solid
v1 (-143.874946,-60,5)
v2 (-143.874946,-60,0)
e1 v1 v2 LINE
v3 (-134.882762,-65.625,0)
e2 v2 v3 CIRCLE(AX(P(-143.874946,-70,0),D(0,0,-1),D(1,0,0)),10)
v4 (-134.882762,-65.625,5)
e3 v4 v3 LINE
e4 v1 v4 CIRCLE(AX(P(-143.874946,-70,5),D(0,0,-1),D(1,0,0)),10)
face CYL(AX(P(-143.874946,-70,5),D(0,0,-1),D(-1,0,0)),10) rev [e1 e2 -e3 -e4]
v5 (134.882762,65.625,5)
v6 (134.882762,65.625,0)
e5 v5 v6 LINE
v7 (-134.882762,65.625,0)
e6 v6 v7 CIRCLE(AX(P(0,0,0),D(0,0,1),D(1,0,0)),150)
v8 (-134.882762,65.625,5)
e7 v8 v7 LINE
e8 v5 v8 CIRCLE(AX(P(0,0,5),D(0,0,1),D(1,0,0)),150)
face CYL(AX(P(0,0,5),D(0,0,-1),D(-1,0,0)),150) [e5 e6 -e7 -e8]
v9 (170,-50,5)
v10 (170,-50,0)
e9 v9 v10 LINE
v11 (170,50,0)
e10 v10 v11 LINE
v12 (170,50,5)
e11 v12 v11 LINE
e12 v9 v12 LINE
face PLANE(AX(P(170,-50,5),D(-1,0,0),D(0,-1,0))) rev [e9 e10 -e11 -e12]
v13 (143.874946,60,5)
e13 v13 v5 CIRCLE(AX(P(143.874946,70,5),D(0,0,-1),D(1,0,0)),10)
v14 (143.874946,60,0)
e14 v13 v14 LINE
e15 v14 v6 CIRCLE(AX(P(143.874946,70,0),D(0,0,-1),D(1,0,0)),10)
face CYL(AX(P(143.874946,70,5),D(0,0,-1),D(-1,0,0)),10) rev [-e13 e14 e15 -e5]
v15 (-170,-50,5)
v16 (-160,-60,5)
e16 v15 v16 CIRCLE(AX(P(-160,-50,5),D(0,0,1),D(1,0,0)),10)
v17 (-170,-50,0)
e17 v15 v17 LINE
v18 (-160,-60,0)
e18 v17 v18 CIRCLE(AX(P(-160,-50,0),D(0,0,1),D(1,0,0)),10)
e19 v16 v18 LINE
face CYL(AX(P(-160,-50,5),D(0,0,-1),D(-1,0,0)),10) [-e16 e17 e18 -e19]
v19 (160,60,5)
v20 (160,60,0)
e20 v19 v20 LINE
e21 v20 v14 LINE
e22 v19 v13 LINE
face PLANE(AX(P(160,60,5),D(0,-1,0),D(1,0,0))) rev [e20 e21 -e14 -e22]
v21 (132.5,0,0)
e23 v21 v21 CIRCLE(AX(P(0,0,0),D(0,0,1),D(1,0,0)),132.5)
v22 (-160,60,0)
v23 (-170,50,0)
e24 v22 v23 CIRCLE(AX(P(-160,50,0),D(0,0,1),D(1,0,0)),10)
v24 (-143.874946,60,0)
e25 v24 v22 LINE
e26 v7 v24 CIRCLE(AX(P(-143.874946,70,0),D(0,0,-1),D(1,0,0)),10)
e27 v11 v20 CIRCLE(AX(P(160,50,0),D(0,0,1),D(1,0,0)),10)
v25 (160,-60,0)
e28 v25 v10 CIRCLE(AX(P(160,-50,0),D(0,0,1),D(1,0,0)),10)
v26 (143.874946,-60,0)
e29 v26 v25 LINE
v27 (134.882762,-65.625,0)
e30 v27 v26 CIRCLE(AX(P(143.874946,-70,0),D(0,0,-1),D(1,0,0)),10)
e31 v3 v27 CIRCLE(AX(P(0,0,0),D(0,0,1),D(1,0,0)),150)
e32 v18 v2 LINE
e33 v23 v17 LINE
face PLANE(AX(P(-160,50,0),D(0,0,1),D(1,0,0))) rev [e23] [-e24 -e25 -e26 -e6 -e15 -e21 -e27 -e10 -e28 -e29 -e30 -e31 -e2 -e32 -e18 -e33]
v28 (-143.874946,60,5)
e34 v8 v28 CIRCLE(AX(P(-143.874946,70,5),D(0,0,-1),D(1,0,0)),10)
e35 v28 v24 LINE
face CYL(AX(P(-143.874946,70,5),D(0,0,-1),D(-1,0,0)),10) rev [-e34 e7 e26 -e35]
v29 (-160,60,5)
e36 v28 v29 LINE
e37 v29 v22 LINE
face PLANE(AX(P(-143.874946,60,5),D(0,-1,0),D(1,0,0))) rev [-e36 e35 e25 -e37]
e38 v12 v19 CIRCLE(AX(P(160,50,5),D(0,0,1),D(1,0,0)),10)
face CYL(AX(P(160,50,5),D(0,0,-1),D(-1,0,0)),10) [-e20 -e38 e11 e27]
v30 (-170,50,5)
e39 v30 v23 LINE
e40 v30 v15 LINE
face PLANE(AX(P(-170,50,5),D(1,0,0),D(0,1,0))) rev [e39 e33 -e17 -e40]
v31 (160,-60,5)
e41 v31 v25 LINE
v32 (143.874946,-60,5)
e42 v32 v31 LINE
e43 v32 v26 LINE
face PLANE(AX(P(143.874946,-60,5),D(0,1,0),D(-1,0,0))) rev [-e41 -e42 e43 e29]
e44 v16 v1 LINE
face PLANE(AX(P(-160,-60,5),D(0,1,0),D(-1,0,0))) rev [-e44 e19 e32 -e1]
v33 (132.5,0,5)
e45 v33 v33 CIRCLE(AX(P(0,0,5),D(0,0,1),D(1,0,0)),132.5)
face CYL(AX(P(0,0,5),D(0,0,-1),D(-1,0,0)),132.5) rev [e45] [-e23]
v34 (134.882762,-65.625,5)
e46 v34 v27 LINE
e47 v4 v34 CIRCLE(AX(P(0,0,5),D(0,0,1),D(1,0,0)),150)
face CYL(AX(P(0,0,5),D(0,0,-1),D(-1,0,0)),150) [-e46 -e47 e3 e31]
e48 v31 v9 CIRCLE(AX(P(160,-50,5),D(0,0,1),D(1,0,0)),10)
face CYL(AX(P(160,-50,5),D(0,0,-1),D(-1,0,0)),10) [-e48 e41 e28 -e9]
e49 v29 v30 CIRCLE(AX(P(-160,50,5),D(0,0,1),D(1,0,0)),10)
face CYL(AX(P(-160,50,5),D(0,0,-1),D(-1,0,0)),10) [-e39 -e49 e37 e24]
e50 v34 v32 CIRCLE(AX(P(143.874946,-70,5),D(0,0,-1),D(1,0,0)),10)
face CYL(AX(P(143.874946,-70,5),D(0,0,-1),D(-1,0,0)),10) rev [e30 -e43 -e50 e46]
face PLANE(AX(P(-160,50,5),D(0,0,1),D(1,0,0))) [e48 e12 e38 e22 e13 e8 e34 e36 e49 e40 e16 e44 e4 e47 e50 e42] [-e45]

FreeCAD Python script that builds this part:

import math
import FreeCAD as App
import Part
import Sketcher

V = App.Vector
Q = App.Units.Quantity

doc = App.newDocument("Part")
body = doc.addObject("PartDesign::Body", "Body")

# Sketch on XY plane
sketch1 = body.newObject("Sketcher::SketchObject", "Sketch")
sketch1.AttachmentSupport = (doc.getObject("XY_Plane"), [""])
sketch1.MapMode = "FlatFace"
sketch1.addGeometry([
    Part.LineSegment(V(-170, 50, 0), V(-170, -50, 0)),  # 0
    Part.ArcOfCircle(Part.Circle(V(-160, -50, 0), V(0, 0, 1), 10), math.radians(180), math.radians(270)),  # 1
    Part.LineSegment(V(-160, -60, 0), V(-144, -60, 0)),  # 2
    Part.ArcOfCircle(Part.Circle(V(-144, -70, 0), V(0, 0, 1), 10), math.radians(26), math.radians(90)),  # 3
    Part.ArcOfCircle(Part.Circle(V(0, 0, 0), V(0, 0, 1), 150), math.radians(-154), math.radians(-90)),  # 4
    Part.ArcOfCircle(Part.Circle(V(0, 0, 0), V(0, 0, 1), 150), math.radians(-90), math.radians(-26)),  # 5
    Part.ArcOfCircle(Part.Circle(V(144, -70, 0), V(0, 0, 1), 10), math.radians(90), math.radians(154)),  # 6
    Part.LineSegment(V(144, -60, 0), V(160, -60, 0)),  # 7
    Part.ArcOfCircle(Part.Circle(V(160, -50, 0), V(0, 0, 1), 10), math.radians(-90), math.radians(0)),  # 8
    Part.LineSegment(V(170, -50, 0), V(170, 50, 0)),  # 9
    Part.ArcOfCircle(Part.Circle(V(160, 50, 0), V(0, 0, 1), 10), math.radians(0), math.radians(90)),  # 10
    Part.LineSegment(V(160, 60, 0), V(144, 60, 0)),  # 11
    Part.ArcOfCircle(Part.Circle(V(144, 70, 0), V(0, 0, 1), 10), math.radians(-154), math.radians(-90)),  # 12
    Part.ArcOfCircle(Part.Circle(V(0, 0, 0), V(0, 0, 1), 150), math.radians(26), math.radians(154)),  # 13
    Part.ArcOfCircle(Part.Circle(V(-144, 70, 0), V(0, 0, 1), 10), math.radians(-90), math.radians(-26)),  # 14
    Part.LineSegment(V(-144, 60, 0), V(-160, 60, 0)),  # 15
    Part.ArcOfCircle(Part.Circle(V(-160, 50, 0), V(0, 0, 1), 10), math.radians(90), math.radians(180)),  # 16
    Part.Circle(V(0, 0, 0), V(0, 0, 1), 132),  # 17
], False)
sketch1.addConstraint([
    Sketcher.Constraint("Tangent", 0, 2, 1, 1),
    Sketcher.Constraint("Tangent", 1, 2, 2, 1),
    Sketcher.Constraint("Tangent", 2, 2, 3, 2),
    Sketcher.Constraint("Tangent", 3, 1, 4, 1),
    Sketcher.Constraint("Tangent", 4, 2, 5, 1),
    Sketcher.Constraint("Tangent", 5, 2, 6, 2),
    Sketcher.Constraint("Tangent", 6, 1, 7, 1),
    Sketcher.Constraint("Tangent", 7, 2, 8, 1),
    Sketcher.Constraint("Tangent", 8, 2, 9, 1),
    Sketcher.Constraint("Tangent", 9, 2, 10, 1),
    Sketcher.Constraint("Tangent", 10, 2, 11, 1),
    Sketcher.Constraint("Tangent", 11, 2, 12, 2),
    Sketcher.Constraint("Tangent", 12, 1, 13, 1),
    Sketcher.Constraint("Tangent", 13, 2, 14, 2),
    Sketcher.Constraint("Tangent", 14, 1, 15, 1),
    Sketcher.Constraint("Tangent", 15, 2, 16, 1),
    Sketcher.Constraint("Tangent", 16, 2, 0, 1),
    Sketcher.Constraint("Vertical", 0),
    Sketcher.Constraint("Horizontal", 2),
    Sketcher.Constraint("Horizontal", 7),
    Sketcher.Constraint("Vertical", 9),
    Sketcher.Constraint("Horizontal", 11),
    Sketcher.Constraint("Horizontal", 15),
    Sketcher.Constraint("Coincident", 4, 3, -1, 1),
    Sketcher.Constraint("Coincident", 13, 3, -1, 1),
    Sketcher.Constraint("Coincident", 17, 3, -1, 1),
    Sketcher.Constraint("Equal", 1, 3),
    Sketcher.Constraint("Equal", 4, 5),
    Sketcher.Constraint("Equal", 3, 6),
    Sketcher.Constraint("Equal", 6, 8),
    Sketcher.Constraint("Equal", 8, 10),
    Sketcher.Constraint("Equal", 10, 12),
    Sketcher.Constraint("Equal", 5, 13),
    Sketcher.Constraint("Equal", 12, 14),
    Sketcher.Constraint("Equal", 14, 16),
    Sketcher.Constraint("Symmetric", 1, 3, 10, 3, -1, 1),
    Sketcher.Constraint("PointOnObject", 4, 2, -2),
    Sketcher.Constraint("Horizontal", 3, 3, 6, 3),
    Sketcher.Constraint("Horizontal", 12, 3, 14, 3),
    Sketcher.Constraint("Diameter", 17, Q("265 mm")),
    Sketcher.Constraint("Radius", 1, Q("10 mm")),
    Sketcher.Constraint("Radius", 4, Q("150 mm")),
    Sketcher.Constraint("DistanceY", 0, 2, 0, 1, Q("100 mm")),
    Sketcher.Constraint("DistanceX", 1, 3, -1, 1, Q("160 mm")),
])
pad1 = body.newObject("PartDesign::Pad", "Pad")
pad1.Profile = sketch1
pad1.Length = 5

doc.recompute()
